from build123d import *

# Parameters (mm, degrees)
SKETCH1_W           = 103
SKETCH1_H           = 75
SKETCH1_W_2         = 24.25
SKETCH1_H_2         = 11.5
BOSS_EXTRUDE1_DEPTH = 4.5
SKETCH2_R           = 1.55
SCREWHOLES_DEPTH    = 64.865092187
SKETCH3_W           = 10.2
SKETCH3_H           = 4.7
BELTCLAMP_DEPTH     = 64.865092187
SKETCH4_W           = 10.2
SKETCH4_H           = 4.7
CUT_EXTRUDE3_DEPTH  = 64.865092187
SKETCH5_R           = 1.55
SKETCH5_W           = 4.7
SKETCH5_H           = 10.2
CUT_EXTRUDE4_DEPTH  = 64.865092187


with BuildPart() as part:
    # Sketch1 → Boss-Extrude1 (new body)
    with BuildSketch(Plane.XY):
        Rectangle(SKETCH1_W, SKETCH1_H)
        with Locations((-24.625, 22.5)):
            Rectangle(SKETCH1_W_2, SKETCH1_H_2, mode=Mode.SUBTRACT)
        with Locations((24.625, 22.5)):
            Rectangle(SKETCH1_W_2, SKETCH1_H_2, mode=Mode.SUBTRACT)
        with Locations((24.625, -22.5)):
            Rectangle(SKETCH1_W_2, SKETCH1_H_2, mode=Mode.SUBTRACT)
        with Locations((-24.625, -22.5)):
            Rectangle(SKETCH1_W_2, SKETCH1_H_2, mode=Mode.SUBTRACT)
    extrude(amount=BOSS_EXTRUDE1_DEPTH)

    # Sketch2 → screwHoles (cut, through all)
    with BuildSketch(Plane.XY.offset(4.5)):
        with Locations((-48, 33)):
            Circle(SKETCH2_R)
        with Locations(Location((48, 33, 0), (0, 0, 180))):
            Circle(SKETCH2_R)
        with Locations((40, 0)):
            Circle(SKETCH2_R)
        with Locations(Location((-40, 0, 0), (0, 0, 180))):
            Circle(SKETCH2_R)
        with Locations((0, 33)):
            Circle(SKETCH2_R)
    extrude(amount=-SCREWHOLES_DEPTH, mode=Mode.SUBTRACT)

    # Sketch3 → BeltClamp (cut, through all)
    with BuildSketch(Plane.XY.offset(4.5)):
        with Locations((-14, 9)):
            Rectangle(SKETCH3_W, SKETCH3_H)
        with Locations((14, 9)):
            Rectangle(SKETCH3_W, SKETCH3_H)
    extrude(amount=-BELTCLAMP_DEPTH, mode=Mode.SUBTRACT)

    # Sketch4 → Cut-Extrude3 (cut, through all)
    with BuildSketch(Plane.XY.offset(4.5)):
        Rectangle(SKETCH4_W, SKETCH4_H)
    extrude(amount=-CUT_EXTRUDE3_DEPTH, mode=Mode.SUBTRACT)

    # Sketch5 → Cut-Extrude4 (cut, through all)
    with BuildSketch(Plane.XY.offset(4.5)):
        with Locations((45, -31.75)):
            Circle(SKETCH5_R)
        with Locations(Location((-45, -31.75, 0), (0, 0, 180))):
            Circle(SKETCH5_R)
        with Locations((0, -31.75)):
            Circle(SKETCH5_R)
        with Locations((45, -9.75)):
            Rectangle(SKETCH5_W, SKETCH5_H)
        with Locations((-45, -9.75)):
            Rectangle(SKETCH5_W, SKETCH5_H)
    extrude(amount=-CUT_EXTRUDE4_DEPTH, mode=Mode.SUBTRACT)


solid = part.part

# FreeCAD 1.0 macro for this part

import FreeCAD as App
import Part
import Sketcher

doc = App.newDocument("Part")
params = doc.addObject("Spreadsheet::Sheet", "Params")
for row, (alias, value) in enumerate([
    ("sketch1_width", "103 mm"),
    ("sketch1_height", "75 mm"),
    ("sketch1_height2", "11.5 mm"),
    ("sketch1_width2", "24.25 mm"),
    ("pad1_length", "4.5 mm"),
    ("sketch2_diameter", "3.1 mm"),
    ("sketch3_width", "10.2 mm"),
    ("sketch3_height", "4.7 mm"),
    ("sketch4_width", "10.2 mm"),
    ("sketch4_height", "4.7 mm"),
    ("sketch5_diameter", "3.1 mm"),
    ("sketch5_width", "4.7 mm"),
    ("sketch5_height", "10.2 mm"),
], start=1):
    params.set(f"A{row}", alias)
    params.set(f"B{row}", "=" + value)
    params.setAlias(f"B{row}", alias)

body = doc.addObject("PartDesign::Body", "Body")

# Sketch on XY plane
sketch1 = body.newObject("Sketcher::SketchObject", "Sketch")
sketch1.AttachmentSupport = (doc.getObject("XY_Plane"), [""])
sketch1.MapMode = "FlatFace"
sketch1.addGeometry([
    Part.LineSegment(App.Vector(-51.5, 37.5, 0), App.Vector(-51.5, -37.5, 0)),  # 0
    Part.LineSegment(App.Vector(-51.5, -37.5, 0), App.Vector(51.5, -37.5, 0)),  # 1
    Part.LineSegment(App.Vector(51.5, -37.5, 0), App.Vector(51.5, 37.5, 0)),  # 2
    Part.LineSegment(App.Vector(51.5, 37.5, 0), App.Vector(-51.5, 37.5, 0)),  # 3
    Part.LineSegment(App.Vector(-12.5, -28.25, 0), App.Vector(-36.75, -28.25, 0)),  # 4
    Part.LineSegment(App.Vector(-36.75, -28.25, 0), App.Vector(-36.75, -16.75, 0)),  # 5
    Part.LineSegment(App.Vector(-36.75, -16.75, 0), App.Vector(-12.5, -16.75, 0)),  # 6
    Part.LineSegment(App.Vector(-12.5, -16.75, 0), App.Vector(-12.5, -28.25, 0)),  # 7
    Part.LineSegment(App.Vector(36.75, -28.25, 0), App.Vector(12.5, -28.25, 0)),  # 8
    Part.LineSegment(App.Vector(12.5, -28.25, 0), App.Vector(12.5, -16.75, 0)),  # 9
    Part.LineSegment(App.Vector(12.5, -16.75, 0), App.Vector(36.75, -16.75, 0)),  # 10
    Part.LineSegment(App.Vector(36.75, -16.75, 0), App.Vector(36.75, -28.25, 0)),  # 11
    Part.LineSegment(App.Vector(-12.5, 16.75, 0), App.Vector(-36.75, 16.75, 0)),  # 12
    Part.LineSegment(App.Vector(-36.75, 16.75, 0), App.Vector(-36.75, 28.25, 0)),  # 13
    Part.LineSegment(App.Vector(-36.75, 28.25, 0), App.Vector(-12.5, 28.25, 0)),  # 14
    Part.LineSegment(App.Vector(-12.5, 28.25, 0), App.Vector(-12.5, 16.75, 0)),  # 15
    Part.LineSegment(App.Vector(36.75, 16.75, 0), App.Vector(12.5, 16.75, 0)),  # 16
    Part.LineSegment(App.Vector(12.5, 16.75, 0), App.Vector(12.5, 28.25, 0)),  # 17
    Part.LineSegment(App.Vector(12.5, 28.25, 0), App.Vector(36.75, 28.25, 0)),  # 18
    Part.LineSegment(App.Vector(36.75, 28.25, 0), App.Vector(36.75, 16.75, 0)),  # 19
], False)
sketch1.addConstraint([
    Sketcher.Constraint("Coincident", 0, 2, 1, 1),
    Sketcher.Constraint("Coincident", 1, 2, 2, 1),
    Sketcher.Constraint("Coincident", 2, 2, 3, 1),
    Sketcher.Constraint("Coincident", 3, 2, 0, 1),
    Sketcher.Constraint("Coincident", 4, 2, 5, 1),
    Sketcher.Constraint("Coincident", 5, 2, 6, 1),
    Sketcher.Constraint("Coincident", 6, 2, 7, 1),
    Sketcher.Constraint("Coincident", 7, 2, 4, 1),
    Sketcher.Constraint("Coincident", 8, 2, 9, 1),
    Sketcher.Constraint("Coincident", 9, 2, 10, 1),
    Sketcher.Constraint("Coincident", 10, 2, 11, 1),
    Sketcher.Constraint("Coincident", 11, 2, 8, 1),
    Sketcher.Constraint("Coincident", 12, 2, 13, 1),
    Sketcher.Constraint("Coincident", 13, 2, 14, 1),
    Sketcher.Constraint("Coincident", 14, 2, 15, 1),
    Sketcher.Constraint("Coincident", 15, 2, 12, 1),
    Sketcher.Constraint("Coincident", 16, 2, 17, 1),
    Sketcher.Constraint("Coincident", 17, 2, 18, 1),
    Sketcher.Constraint("Coincident", 18, 2, 19, 1),
    Sketcher.Constraint("Coincident", 19, 2, 16, 1),
    Sketcher.Constraint("Vertical", 0),
    Sketcher.Constraint("Horizontal", 1),
    Sketcher.Constraint("Vertical", 2),
    Sketcher.Constraint("Horizontal", 3),
    Sketcher.Constraint("Horizontal", 4),
    Sketcher.Constraint("Vertical", 5),
    Sketcher.Constraint("Horizontal", 6),
    Sketcher.Constraint("Vertical", 7),
    Sketcher.Constraint("Horizontal", 8),
    Sketcher.Constraint("Vertical", 9),
    Sketcher.Constraint("Horizontal", 10),
    Sketcher.Constraint("Vertical", 11),
    Sketcher.Constraint("Horizontal", 12),
    Sketcher.Constraint("Vertical", 13),
    Sketcher.Constraint("Horizontal", 14),
    Sketcher.Constraint("Vertical", 15),
    Sketcher.Constraint("Horizontal", 16),
    Sketcher.Constraint("Vertical", 17),
    Sketcher.Constraint("Horizontal", 18),
    Sketcher.Constraint("Vertical", 19),
    Sketcher.Constraint("Symmetric", 0, 2, 2, 2, -1, 1),
    Sketcher.Constraint("Symmetric", 10, 2, 12, 2, -1, 1),
    Sketcher.Constraint("Symmetric", 8, 2, 14, 2, -1, 1),
    Sketcher.Constraint("Symmetric", 6, 2, 16, 2, -1, 1),
    Sketcher.Constraint("Symmetric", 4, 2, 18, 2, -1, 1),
    Sketcher.Constraint("Symmetric", 7, 2, 8, 2, -2),
    Sketcher.Constraint("Symmetric", 5, 2, 10, 2, -2),
    Sketcher.Constraint("DistanceX", 1, 1, 1, 2, 103.0),
    Sketcher.Constraint("DistanceY", 0, 2, 0, 1, 75.0),
    Sketcher.Constraint("DistanceY", 5, 1, 5, 2, 11.5),
    Sketcher.Constraint("DistanceX", 0, 2, 6, 2, 39.0),
    Sketcher.Constraint("DistanceY", 4, 2, 12, 2, 45.0),
    Sketcher.Constraint("DistanceX", 4, 2, 4, 1, 24.25),
])
sketch1.setExpression("Constraints[47]", "Params.sketch1_width")
sketch1.setExpression("Constraints[48]", "Params.sketch1_height")
sketch1.setExpression("Constraints[49]", "Params.sketch1_height2")
sketch1.setExpression("Constraints[52]", "Params.sketch1_width2")
pad1 = body.newObject("PartDesign::Pad", "Pad")
pad1.Profile = sketch1
pad1.setExpression("Length", "Params.pad1_length")

# Sketch on XY plane
sketch2 = body.newObject("Sketcher::SketchObject", "Sketch001")
sketch2.AttachmentSupport = (doc.getObject("XY_Plane"), [""])
sketch2.MapMode = "FlatFace"
sketch2.AttachmentOffset = App.Placement(App.Vector(0, 0, 4.5), App.Rotation())
sketch2.addGeometry([
    Part.Circle(App.Vector(-48, 33, 0), App.Vector(0, 0, 1), 1.55),  # 0
    Part.Circle(App.Vector(48, 33, 0), App.Vector(0, 0, 1), 1.55),  # 1
    Part.Circle(App.Vector(40, 0, 0), App.Vector(0, 0, 1), 1.55),  # 2
    Part.Circle(App.Vector(-40, 0, 0), App.Vector(0, 0, 1), 1.55),  # 3
    Part.Circle(App.Vector(0, 33, 0), App.Vector(0, 0, 1), 1.55),  # 4
], False)
sketch2.addConstraint([
    Sketcher.Constraint("Equal", 0, 1),
    Sketcher.Constraint("Equal", 1, 2),
    Sketcher.Constraint("Equal", 2, 3),
    Sketcher.Constraint("Equal", 3, 4),
    Sketcher.Constraint("Symmetric", 2, 3, 3, 3, -1, 1),
    Sketcher.Constraint("Symmetric", 0, 3, 1, 3, -2),
    Sketcher.Constraint("PointOnObject", 2, 3, -1),
    Sketcher.Constraint("PointOnObject", 4, 3, -2),
    Sketcher.Constraint("Horizontal", 1, 3, 4, 3),
    Sketcher.Constraint("Diameter", 0, 3.1),
    Sketcher.Constraint("DistanceX", 0, 3, -1, 1, 48.0),
    Sketcher.Constraint("DistanceY", -1, 1, 0, 3, 33.0),
    Sketcher.Constraint("DistanceX", -1, 1, 2, 3, 40.0),
])
sketch2.setExpression("Constraints[9]", "Params.sketch2_diameter")
pocket1 = body.newObject("PartDesign::Pocket", "Pocket")
pocket1.Profile = sketch2
pocket1.Type = "ThroughAll"

# Sketch on XY plane
sketch3 = body.newObject("Sketcher::SketchObject", "Sketch002")
sketch3.AttachmentSupport = (doc.getObject("XY_Plane"), [""])
sketch3.MapMode = "FlatFace"
sketch3.AttachmentOffset = App.Placement(App.Vector(0, 0, 4.5), App.Rotation())
sketch3.addGeometry([
    Part.LineSegment(App.Vector(-19.1, 11.35, 0), App.Vector(-19.1, 6.65, 0)),  # 0
    Part.LineSegment(App.Vector(-19.1, 6.65, 0), App.Vector(-8.9, 6.65, 0)),  # 1
    Part.LineSegment(App.Vector(-8.9, 6.65, 0), App.Vector(-8.9, 11.35, 0)),  # 2
    Part.LineSegment(App.Vector(-8.9, 11.35, 0), App.Vector(-19.1, 11.35, 0)),  # 3
    Part.LineSegment(App.Vector(8.9, 11.35, 0), App.Vector(8.9, 6.65, 0)),  # 4
    Part.LineSegment(App.Vector(8.9, 6.65, 0), App.Vector(19.1, 6.65, 0)),  # 5
    Part.LineSegment(App.Vector(19.1, 6.65, 0), App.Vector(19.1, 11.35, 0)),  # 6
    Part.LineSegment(App.Vector(19.1, 11.35, 0), App.Vector(8.9, 11.35, 0)),  # 7
], False)
sketch3.addConstraint([
    Sketcher.Constraint("Coincident", 0, 2, 1, 1),
    Sketcher.Constraint("Coincident", 1, 2, 2, 1),
    Sketcher.Constraint("Coincident", 2, 2, 3, 1),
    Sketcher.Constraint("Coincident", 3, 2, 0, 1),
    Sketcher.Constraint("Coincident", 4, 2, 5, 1),
    Sketcher.Constraint("Coincident", 5, 2, 6, 1),
    Sketcher.Constraint("Coincident", 6, 2, 7, 1),
    Sketcher.Constraint("Coincident", 7, 2, 4, 1),
    Sketcher.Constraint("Vertical", 0),
    Sketcher.Constraint("Horizontal", 1),
    Sketcher.Constraint("Vertical", 2),
    Sketcher.Constraint("Horizontal", 3),
    Sketcher.Constraint("Vertical", 4),
    Sketcher.Constraint("Horizontal", 5),
    Sketcher.Constraint("Vertical", 6),
    Sketcher.Constraint("Horizontal", 7),
    Sketcher.Constraint("Symmetric", 1, 2, 4, 2, -2),
    Sketcher.Constraint("Symmetric", 3, 2, 6, 2, -2),
    Sketcher.Constraint("DistanceX", 1, 1, 1, 2, 10.2),
    Sketcher.Constraint("DistanceY", 0, 2, 0, 1, 4.7),
    Sketcher.Constraint("DistanceX", 0, 2, 4, 2, 28.0),
    Sketcher.Constraint("DistanceY", -1, 1, 0, 2, 6.65),
])
sketch3.setExpression("Constraints[18]", "Params.sketch3_width")
sketch3.setExpression("Constraints[19]", "Params.sketch3_height")
pocket2 = body.newObject("PartDesign::Pocket", "Pocket001")
pocket2.Profile = sketch3
pocket2.Type = "ThroughAll"

# Sketch on XY plane
sketch4 = body.newObject("Sketcher::SketchObject", "Sketch003")
sketch4.AttachmentSupport = (doc.getObject("XY_Plane"), [""])
sketch4.MapMode = "FlatFace"
sketch4.AttachmentOffset = App.Placement(App.Vector(0, 0, 4.5), App.Rotation())
sketch4.addGeometry([
    Part.LineSegment(App.Vector(-5.1, 2.35, 0), App.Vector(-5.1, -2.35, 0)),
    Part.LineSegment(App.Vector(-5.1, -2.35, 0), App.Vector(5.1, -2.35, 0)),
    Part.LineSegment(App.Vector(5.1, -2.35, 0), App.Vector(5.1, 2.35, 0)),
    Part.LineSegment(App.Vector(5.1, 2.35, 0), App.Vector(-5.1, 2.35, 0)),
], False)
sketch4.addConstraint([
    Sketcher.Constraint("Coincident", 0, 2, 1, 1),
    Sketcher.Constraint("Coincident", 1, 2, 2, 1),
    Sketcher.Constraint("Coincident", 2, 2, 3, 1),
    Sketcher.Constraint("Coincident", 3, 2, 0, 1),
    Sketcher.Constraint("Vertical", 0),
    Sketcher.Constraint("Horizontal", 1),
    Sketcher.Constraint("Vertical", 2),
    Sketcher.Constraint("Horizontal", 3),
    Sketcher.Constraint("Symmetric", 0, 2, 2, 2, -1, 1),
    Sketcher.Constraint("DistanceX", 1, 1, 1, 2, 10.2),
    Sketcher.Constraint("DistanceY", 0, 2, 0, 1, 4.7),
])
sketch4.setExpression("Constraints[9]", "Params.sketch4_width")
sketch4.setExpression("Constraints[10]", "Params.sketch4_height")
pocket3 = body.newObject("PartDesign::Pocket", "Pocket002")
pocket3.Profile = sketch4
pocket3.Type = "ThroughAll"

# Sketch on XY plane
sketch5 = body.newObject("Sketcher::SketchObject", "Sketch004")
sketch5.AttachmentSupport = (doc.getObject("XY_Plane"), [""])
sketch5.MapMode = "FlatFace"
sketch5.AttachmentOffset = App.Placement(App.Vector(0, 0, 4.5), App.Rotation())
sketch5.addGeometry([
    Part.Circle(App.Vector(45, -31.75, 0), App.Vector(0, 0, 1), 1.55),  # 0
    Part.Circle(App.Vector(-45, -31.75, 0), App.Vector(0, 0, 1), 1.55),  # 1
    Part.Circle(App.Vector(0, -31.75, 0), App.Vector(0, 0, 1), 1.55),  # 2
    Part.LineSegment(App.Vector(42.65, -4.65, 0), App.Vector(42.65, -14.85, 0)),  # 3
    Part.LineSegment(App.Vector(42.65, -14.85, 0), App.Vector(47.35, -14.85, 0)),  # 4
    Part.LineSegment(App.Vector(47.35, -14.85, 0), App.Vector(47.35, -4.65, 0)),  # 5
    Part.LineSegment(App.Vector(47.35, -4.65, 0), App.Vector(42.65, -4.65, 0)),  # 6
    Part.LineSegment(App.Vector(-47.35, -4.65, 0), App.Vector(-47.35, -14.85, 0)),  # 7
    Part.LineSegment(App.Vector(-47.35, -14.85, 0), App.Vector(-42.65, -14.85, 0)),  # 8
    Part.LineSegment(App.Vector(-42.65, -14.85, 0), App.Vector(-42.65, -4.65, 0)),  # 9
    Part.LineSegment(App.Vector(-42.65, -4.65, 0), App.Vector(-47.35, -4.65, 0)),  # 10
], False)
sketch5.addConstraint([
    Sketcher.Constraint("Coincident", 3, 2, 4, 1),
    Sketcher.Constraint("Coincident", 4, 2, 5, 1),
    Sketcher.Constraint("Coincident", 5, 2, 6, 1),
    Sketcher.Constraint("Coincident", 6, 2, 3, 1),
    Sketcher.Constraint("Coincident", 7, 2, 8, 1),
    Sketcher.Constraint("Coincident", 8, 2, 9, 1),
    Sketcher.Constraint("Coincident", 9, 2, 10, 1),
    Sketcher.Constraint("Coincident", 10, 2, 7, 1),
    Sketcher.Constraint("Vertical", 3),
    Sketcher.Constraint("Horizontal", 4),
    Sketcher.Constraint("Vertical", 5),
    Sketcher.Constraint("Horizontal", 6),
    Sketcher.Constraint("Vertical", 7),
    Sketcher.Constraint("Horizontal", 8),
    Sketcher.Constraint("Vertical", 9),
    Sketcher.Constraint("Horizontal", 10),
    Sketcher.Constraint("Equal", 0, 1),
    Sketcher.Constraint("Equal", 1, 2),
    Sketcher.Constraint("Symmetric", 0, 3, 1, 3, -2),
    Sketcher.Constraint("Symmetric", 4, 2, 7, 2, -2),
    Sketcher.Constraint("Symmetric", 6, 2, 9, 2, -2),
    Sketcher.Constraint("PointOnObject", 2, 3, -2),
    Sketcher.Constraint("Horizontal", 1, 3, 2, 3),
    Sketcher.Constraint("Diameter", 0, 3.1),
    Sketcher.Constraint("DistanceX", 4, 1, 4, 2, 4.7),
    Sketcher.Constraint("DistanceY", 3, 2, 3, 1, 10.2),
    Sketcher.Constraint("DistanceX", -1, 1, 0, 3, 45.0),
    Sketcher.Constraint("DistanceX", 7, 2, 3, 2, 90.0),
    Sketcher.Constraint("DistanceY", 0, 3, 3, 2, 16.9),
    Sketcher.Constraint("DistanceY", 0, 3, -1, 1, 31.75),
])
sketch5.setExpression("Constraints[23]", "Params.sketch5_diameter")
sketch5.setExpression("Constraints[24]", "Params.sketch5_width")
sketch5.setExpression("Constraints[25]", "Params.sketch5_height")
pocket4 = body.newObject("PartDesign::Pocket", "Pocket003")
pocket4.Profile = sketch5
pocket4.Type = "ThroughAll"

doc.recompute()
